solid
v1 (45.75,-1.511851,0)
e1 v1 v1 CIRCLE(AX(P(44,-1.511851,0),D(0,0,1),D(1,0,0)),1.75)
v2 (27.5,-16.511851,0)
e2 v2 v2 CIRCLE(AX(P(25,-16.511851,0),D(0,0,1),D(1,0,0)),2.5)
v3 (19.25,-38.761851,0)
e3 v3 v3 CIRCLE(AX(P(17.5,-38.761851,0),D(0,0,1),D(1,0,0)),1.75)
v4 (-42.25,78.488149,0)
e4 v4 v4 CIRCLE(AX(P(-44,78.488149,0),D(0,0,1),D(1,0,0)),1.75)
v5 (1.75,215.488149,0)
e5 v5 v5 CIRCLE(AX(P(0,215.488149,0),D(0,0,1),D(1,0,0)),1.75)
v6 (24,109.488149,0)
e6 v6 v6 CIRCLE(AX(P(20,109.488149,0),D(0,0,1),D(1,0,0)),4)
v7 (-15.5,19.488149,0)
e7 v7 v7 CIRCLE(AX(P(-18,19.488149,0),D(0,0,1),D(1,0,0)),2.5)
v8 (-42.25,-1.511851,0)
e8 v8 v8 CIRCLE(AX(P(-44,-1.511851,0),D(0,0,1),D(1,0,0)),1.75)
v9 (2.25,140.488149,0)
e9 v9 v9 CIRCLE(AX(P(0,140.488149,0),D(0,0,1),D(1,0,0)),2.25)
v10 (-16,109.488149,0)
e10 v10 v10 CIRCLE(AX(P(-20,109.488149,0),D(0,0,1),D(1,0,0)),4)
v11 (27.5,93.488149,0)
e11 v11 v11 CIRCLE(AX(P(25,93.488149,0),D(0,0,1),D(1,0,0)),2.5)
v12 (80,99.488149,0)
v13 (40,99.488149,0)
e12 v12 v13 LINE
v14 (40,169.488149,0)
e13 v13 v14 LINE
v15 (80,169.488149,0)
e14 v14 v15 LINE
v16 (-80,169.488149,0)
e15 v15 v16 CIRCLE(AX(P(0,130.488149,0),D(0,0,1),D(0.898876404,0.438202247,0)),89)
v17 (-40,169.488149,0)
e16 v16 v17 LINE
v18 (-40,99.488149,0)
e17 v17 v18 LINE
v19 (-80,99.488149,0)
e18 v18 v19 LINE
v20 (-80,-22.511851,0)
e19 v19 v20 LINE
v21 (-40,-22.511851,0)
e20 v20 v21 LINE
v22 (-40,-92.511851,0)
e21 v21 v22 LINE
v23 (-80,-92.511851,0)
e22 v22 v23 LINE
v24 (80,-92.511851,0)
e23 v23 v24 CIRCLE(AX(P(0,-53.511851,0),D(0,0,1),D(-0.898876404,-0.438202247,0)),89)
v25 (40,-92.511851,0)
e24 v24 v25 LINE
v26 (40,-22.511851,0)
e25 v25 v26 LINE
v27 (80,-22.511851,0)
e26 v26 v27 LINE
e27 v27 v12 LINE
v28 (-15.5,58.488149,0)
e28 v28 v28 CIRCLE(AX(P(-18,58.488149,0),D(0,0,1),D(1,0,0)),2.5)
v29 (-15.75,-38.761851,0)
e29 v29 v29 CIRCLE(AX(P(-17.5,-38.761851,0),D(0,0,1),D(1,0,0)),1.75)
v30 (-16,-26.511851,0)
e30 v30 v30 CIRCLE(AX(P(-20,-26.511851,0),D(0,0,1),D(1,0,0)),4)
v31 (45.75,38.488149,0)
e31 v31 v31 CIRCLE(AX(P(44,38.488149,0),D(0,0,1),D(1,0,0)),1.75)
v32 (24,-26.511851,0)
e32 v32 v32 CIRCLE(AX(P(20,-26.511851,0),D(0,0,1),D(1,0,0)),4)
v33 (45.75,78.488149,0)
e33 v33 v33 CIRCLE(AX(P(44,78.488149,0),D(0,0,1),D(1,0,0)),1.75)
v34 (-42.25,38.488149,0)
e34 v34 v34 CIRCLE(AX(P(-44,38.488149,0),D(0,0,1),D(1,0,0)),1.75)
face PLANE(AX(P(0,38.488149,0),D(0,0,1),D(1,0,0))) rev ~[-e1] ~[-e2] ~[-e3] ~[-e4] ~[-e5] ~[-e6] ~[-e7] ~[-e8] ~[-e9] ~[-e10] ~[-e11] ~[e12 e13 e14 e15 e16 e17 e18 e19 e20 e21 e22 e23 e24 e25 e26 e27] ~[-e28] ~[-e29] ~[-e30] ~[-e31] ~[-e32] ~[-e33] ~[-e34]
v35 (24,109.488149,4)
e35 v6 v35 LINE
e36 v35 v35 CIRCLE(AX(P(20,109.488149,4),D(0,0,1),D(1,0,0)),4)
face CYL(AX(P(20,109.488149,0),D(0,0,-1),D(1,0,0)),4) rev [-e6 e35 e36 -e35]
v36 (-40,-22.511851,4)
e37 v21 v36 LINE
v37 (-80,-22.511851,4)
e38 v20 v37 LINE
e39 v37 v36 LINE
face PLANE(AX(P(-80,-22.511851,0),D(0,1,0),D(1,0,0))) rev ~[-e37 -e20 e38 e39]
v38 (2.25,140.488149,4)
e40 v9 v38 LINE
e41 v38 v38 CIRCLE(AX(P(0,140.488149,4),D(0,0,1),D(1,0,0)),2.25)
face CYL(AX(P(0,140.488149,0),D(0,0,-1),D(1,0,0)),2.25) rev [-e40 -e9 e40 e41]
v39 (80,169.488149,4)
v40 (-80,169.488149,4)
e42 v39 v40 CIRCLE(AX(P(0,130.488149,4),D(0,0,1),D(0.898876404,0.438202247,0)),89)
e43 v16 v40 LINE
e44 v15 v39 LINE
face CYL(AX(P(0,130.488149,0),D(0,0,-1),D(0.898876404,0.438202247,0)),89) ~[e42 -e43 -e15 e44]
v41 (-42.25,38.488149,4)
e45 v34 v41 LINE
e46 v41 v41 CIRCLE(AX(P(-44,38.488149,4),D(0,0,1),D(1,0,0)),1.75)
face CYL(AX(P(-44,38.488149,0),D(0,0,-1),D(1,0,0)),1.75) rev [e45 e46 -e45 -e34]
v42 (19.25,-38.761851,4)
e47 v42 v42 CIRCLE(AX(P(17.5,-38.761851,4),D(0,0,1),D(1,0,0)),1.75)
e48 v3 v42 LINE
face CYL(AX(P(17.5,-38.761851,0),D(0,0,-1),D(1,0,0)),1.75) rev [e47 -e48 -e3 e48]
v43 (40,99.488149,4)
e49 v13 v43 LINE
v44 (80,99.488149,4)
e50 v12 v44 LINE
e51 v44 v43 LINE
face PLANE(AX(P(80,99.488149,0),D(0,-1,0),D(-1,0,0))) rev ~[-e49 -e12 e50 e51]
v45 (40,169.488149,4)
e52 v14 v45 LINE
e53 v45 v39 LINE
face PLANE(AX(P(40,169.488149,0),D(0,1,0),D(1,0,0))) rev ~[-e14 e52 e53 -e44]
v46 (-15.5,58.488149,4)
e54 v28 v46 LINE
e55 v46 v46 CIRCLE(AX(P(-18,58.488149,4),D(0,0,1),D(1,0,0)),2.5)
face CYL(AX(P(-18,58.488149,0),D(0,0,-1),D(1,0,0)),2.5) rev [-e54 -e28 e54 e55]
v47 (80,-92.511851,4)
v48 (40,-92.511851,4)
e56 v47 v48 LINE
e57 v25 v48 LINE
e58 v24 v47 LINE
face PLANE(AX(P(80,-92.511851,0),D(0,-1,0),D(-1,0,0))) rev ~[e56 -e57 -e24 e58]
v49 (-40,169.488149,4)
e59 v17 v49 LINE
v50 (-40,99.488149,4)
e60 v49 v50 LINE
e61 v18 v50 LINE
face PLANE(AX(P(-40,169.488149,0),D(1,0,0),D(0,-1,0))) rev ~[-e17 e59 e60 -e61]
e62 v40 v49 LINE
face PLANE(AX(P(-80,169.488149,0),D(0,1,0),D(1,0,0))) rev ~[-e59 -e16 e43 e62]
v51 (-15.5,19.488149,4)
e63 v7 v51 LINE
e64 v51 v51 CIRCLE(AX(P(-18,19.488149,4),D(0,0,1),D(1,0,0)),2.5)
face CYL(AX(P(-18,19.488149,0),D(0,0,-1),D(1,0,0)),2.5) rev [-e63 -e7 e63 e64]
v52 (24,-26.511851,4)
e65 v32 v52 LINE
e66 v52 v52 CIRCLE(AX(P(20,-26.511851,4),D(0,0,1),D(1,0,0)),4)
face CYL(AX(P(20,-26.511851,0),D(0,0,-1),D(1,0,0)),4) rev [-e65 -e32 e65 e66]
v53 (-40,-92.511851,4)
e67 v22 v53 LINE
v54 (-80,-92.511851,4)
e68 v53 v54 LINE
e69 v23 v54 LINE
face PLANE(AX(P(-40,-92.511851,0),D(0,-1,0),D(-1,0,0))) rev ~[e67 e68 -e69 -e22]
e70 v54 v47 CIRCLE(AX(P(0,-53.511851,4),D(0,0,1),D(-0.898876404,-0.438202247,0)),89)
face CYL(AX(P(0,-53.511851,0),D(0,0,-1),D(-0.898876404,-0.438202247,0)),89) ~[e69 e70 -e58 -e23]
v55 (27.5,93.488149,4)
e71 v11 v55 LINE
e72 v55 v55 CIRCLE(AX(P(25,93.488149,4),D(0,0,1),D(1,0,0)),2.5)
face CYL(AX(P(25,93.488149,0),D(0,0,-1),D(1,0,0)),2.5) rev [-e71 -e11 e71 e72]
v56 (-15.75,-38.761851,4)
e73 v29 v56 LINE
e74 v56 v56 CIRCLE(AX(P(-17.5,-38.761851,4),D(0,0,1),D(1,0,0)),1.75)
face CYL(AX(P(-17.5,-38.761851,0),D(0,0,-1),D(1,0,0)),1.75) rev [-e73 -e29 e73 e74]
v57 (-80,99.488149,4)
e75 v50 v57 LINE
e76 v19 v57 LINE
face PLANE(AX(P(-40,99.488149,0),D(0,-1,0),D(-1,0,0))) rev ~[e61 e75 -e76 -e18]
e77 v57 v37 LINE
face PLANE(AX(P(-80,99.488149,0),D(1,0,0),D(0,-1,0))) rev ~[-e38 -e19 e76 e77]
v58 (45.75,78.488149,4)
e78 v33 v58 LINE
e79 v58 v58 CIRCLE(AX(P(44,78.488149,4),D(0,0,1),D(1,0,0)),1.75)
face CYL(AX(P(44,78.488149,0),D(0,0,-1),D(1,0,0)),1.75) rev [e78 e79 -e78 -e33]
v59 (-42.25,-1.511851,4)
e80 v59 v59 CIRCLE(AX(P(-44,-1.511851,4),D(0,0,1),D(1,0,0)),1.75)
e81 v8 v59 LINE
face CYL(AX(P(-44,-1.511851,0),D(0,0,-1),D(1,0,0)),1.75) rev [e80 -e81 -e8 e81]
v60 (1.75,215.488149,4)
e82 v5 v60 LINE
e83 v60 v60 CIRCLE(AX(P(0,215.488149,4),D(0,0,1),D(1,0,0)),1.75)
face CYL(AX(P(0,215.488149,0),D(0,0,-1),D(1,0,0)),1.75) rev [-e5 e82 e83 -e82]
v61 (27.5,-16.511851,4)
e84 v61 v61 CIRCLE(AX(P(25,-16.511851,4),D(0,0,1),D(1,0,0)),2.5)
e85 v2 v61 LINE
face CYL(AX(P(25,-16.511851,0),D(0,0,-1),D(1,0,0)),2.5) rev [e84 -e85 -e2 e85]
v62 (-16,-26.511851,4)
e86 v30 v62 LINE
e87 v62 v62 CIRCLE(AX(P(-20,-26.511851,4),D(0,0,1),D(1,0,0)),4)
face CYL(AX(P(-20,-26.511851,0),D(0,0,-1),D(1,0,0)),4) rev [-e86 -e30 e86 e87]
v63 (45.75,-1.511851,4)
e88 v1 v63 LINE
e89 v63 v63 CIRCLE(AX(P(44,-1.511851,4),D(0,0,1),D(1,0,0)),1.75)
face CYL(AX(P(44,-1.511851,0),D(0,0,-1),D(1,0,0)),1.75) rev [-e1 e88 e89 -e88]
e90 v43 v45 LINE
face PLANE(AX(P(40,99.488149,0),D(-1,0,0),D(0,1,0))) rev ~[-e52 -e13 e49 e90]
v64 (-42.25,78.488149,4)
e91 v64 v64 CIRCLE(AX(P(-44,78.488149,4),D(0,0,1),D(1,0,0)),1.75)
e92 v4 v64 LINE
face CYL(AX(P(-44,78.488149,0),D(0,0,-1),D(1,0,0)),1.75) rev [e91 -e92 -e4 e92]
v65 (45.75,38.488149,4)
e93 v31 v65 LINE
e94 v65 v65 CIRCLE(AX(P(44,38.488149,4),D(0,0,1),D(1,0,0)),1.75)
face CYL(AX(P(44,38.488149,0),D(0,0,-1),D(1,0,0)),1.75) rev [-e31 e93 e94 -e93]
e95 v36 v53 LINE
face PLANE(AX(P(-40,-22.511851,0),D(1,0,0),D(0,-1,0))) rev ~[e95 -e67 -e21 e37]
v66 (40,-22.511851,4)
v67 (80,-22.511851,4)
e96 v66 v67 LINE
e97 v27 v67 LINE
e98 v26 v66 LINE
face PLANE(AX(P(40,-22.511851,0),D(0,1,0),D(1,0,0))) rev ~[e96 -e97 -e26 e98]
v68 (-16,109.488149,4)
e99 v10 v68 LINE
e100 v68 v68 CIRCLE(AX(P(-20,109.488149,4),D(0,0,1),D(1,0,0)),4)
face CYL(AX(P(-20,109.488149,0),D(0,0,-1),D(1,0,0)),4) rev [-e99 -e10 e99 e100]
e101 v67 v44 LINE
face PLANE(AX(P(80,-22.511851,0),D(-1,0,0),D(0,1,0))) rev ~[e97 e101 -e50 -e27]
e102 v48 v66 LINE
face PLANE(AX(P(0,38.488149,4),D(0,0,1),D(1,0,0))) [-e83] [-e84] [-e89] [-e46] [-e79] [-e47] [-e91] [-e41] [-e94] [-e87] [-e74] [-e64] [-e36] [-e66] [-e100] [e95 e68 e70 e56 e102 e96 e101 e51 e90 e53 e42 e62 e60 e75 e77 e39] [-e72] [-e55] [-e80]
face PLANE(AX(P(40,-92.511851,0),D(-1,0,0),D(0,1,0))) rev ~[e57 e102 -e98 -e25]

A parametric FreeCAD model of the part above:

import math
import FreeCAD as App
import Part
import Sketcher
from FreeCAD import Vector
Q = App.Units.Quantity

doc = App.newDocument("Part")
body = doc.addObject("PartDesign::Body", "Body")

sketch1 = doc.addObject("Sketcher::SketchObject", "Sketch")
body.addObject(sketch1)
sketch1.AttachmentSupport = (doc.XY_Plane, [""])
sketch1.MapMode = "FlatFace"
sketch1.addGeometry(Part.ArcOfCircle(Part.Circle(Vector(0, 130.5, 0), Vector(0, 0, 1), 89), math.radians(26), math.radians(154)), False)
sketch1.addGeometry(Part.LineSegment(Vector(-80, 169.5, 0), Vector(-40, 169.5, 0)), False)
sketch1.addGeometry(Part.LineSegment(Vector(-40, 169.5, 0), Vector(-40, 99.5, 0)), False)
sketch1.addGeometry(Part.LineSegment(Vector(-40, 99.5, 0), Vector(-80, 99.5, 0)), False)
sketch1.addGeometry(Part.LineSegment(Vector(-80, 99.5, 0), Vector(-80, -22.5, 0)), False)
sketch1.addGeometry(Part.LineSegment(Vector(-80, -22.5, 0), Vector(-40, -22.5, 0)), False)
sketch1.addGeometry(Part.LineSegment(Vector(-40, -22.5, 0), Vector(-40, -92.5, 0)), False)
sketch1.addGeometry(Part.LineSegment(Vector(-40, -92.5, 0), Vector(-80, -92.5, 0)), False)
sketch1.addGeometry(Part.ArcOfCircle(Part.Circle(Vector(0, -53.5, 0), Vector(0, 0, 1), 89), math.radians(-154), math.radians(-26)), False)
sketch1.addGeometry(Part.LineSegment(Vector(80, -92.5, 0), Vector(40, -92.5, 0)), False)
sketch1.addGeometry(Part.LineSegment(Vector(40, -92.5, 0), Vector(40, -22.5, 0)), False)
sketch1.addGeometry(Part.LineSegment(Vector(40, -22.5, 0), Vector(80, -22.5, 0)), False)
sketch1.addGeometry(Part.LineSegment(Vector(80, -22.5, 0), Vector(80, 99.5, 0)), False)
sketch1.addGeometry(Part.LineSegment(Vector(80, 99.5, 0), Vector(40, 99.5, 0)), False)
sketch1.addGeometry(Part.LineSegment(Vector(40, 99.5, 0), Vector(40, 169.5, 0)), False)
sketch1.addGeometry(Part.LineSegment(Vector(40, 169.5, 0), Vector(80, 169.5, 0)), False)
sketch1.addGeometry(Part.Circle(Vector(-44, -1.5, 0), Vector(0, 0, 1), 1.8), False)
sketch1.addGeometry(Part.Circle(Vector(-17.5, -38.8, 0), Vector(0, 0, 1), 1.8), False)
sketch1.addGeometry(Part.Circle(Vector(-20, -26.5, 0), Vector(0, 0, 1), 4), False)
sketch1.addGeometry(Part.Circle(Vector(-18, 19.5, 0), Vector(0, 0, 1), 2.5), False)
sketch1.addGeometry(Part.Circle(Vector(-44, 38.5, 0), Vector(0, 0, 1), 1.8), False)
sketch1.addGeometry(Part.Circle(Vector(-44, 78.5, 0), Vector(0, 0, 1), 1.8), False)
sketch1.addGeometry(Part.Circle(Vector(-18, 58.5, 0), Vector(0, 0, 1), 2.5), False)
sketch1.addGeometry(Part.Circle(Vector(17.5, -38.8, 0), Vector(0, 0, 1), 1.8), False)
sketch1.addGeometry(Part.Circle(Vector(20, -26.5, 0), Vector(0, 0, 1), 4), False)
sketch1.addGeometry(Part.Circle(Vector(25, -16.5, 0), Vector(0, 0, 1), 2.5), False)
sketch1.addGeometry(Part.Circle(Vector(44, -1.5, 0), Vector(0, 0, 1), 1.8), False)
sketch1.addGeometry(Part.Circle(Vector(44, 38.5, 0), Vector(0, 0, 1), 1.8), False)
sketch1.addGeometry(Part.Circle(Vector(44, 78.5, 0), Vector(0, 0, 1), 1.8), False)
sketch1.addGeometry(Part.Circle(Vector(-20, 109.5, 0), Vector(0, 0, 1), 4), False)
sketch1.addGeometry(Part.Circle(Vector(20, 109.5, 0), Vector(0, 0, 1), 4), False)
sketch1.addGeometry(Part.Circle(Vector(0, 140.5, 0), Vector(0, 0, 1), 2.2), False)
sketch1.addGeometry(Part.Circle(Vector(25, 93.5, 0), Vector(0, 0, 1), 2.5), False)
sketch1.addGeometry(Part.Circle(Vector(0, 215.5, 0), Vector(0, 0, 1), 1.8), False)
sketch1.addConstraint(Sketcher.Constraint("Coincident", 0, 2, 1, 1))
sketch1.addConstraint(Sketcher.Constraint("Coincident", 1, 2, 2, 1))
sketch1.addConstraint(Sketcher.Constraint("Coincident", 2, 2, 3, 1))
sketch1.addConstraint(Sketcher.Constraint("Coincident", 3, 2, 4, 1))
sketch1.addConstraint(Sketcher.Constraint("Coincident", 4, 2, 5, 1))
sketch1.addConstraint(Sketcher.Constraint("Coincident", 5, 2, 6, 1))
sketch1.addConstraint(Sketcher.Constraint("Coincident", 6, 2, 7, 1))
sketch1.addConstraint(Sketcher.Constraint("Coincident", 7, 2, 8, 1))
sketch1.addConstraint(Sketcher.Constraint("Coincident", 8, 2, 9, 1))
sketch1.addConstraint(Sketcher.Constraint("Coincident", 9, 2, 10, 1))
sketch1.addConstraint(Sketcher.Constraint("Coincident", 10, 2, 11, 1))
sketch1.addConstraint(Sketcher.Constraint("Coincident", 11, 2, 12, 1))
sketch1.addConstraint(Sketcher.Constraint("Coincident", 12, 2, 13, 1))
sketch1.addConstraint(Sketcher.Constraint("Coincident", 13, 2, 14, 1))
sketch1.addConstraint(Sketcher.Constraint("Coincident", 14, 2, 15, 1))
sketch1.addConstraint(Sketcher.Constraint("Coincident", 15, 2, 0, 1))
sketch1.addConstraint(Sketcher.Constraint("Horizontal", 1))
sketch1.addConstraint(Sketcher.Constraint("Vertical", 2))
sketch1.addConstraint(Sketcher.Constraint("Horizontal", 3))
sketch1.addConstraint(Sketcher.Constraint("Vertical", 4))
sketch1.addConstraint(Sketcher.Constraint("Horizontal", 5))
sketch1.addConstraint(Sketcher.Constraint("Vertical", 6))
sketch1.addConstraint(Sketcher.Constraint("Horizontal", 7))
sketch1.addConstraint(Sketcher.Constraint("Horizontal", 9))
sketch1.addConstraint(Sketcher.Constraint("Vertical", 10))
sketch1.addConstraint(Sketcher.Constraint("Horizontal", 11))
sketch1.addConstraint(Sketcher.Constraint("Vertical", 12))
sketch1.addConstraint(Sketcher.Constraint("Horizontal", 13))
sketch1.addConstraint(Sketcher.Constraint("Vertical", 14))
sketch1.addConstraint(Sketcher.Constraint("Horizontal", 15))
sketch1.addConstraint(Sketcher.Constraint("Equal", 0, 8))
sketch1.addConstraint(Sketcher.Constraint("Equal", 16, 17))
sketch1.addConstraint(Sketcher.Constraint("Equal", 17, 20))
sketch1.addConstraint(Sketcher.Constraint("Equal", 20, 21))
sketch1.addConstraint(Sketcher.Constraint("Equal", 19, 22))
sketch1.addConstraint(Sketcher.Constraint("Equal", 21, 23))
sketch1.addConstraint(Sketcher.Constraint("Equal", 18, 24))
sketch1.addConstraint(Sketcher.Constraint("Equal", 22, 25))
sketch1.addConstraint(Sketcher.Constraint("Equal", 23, 26))
sketch1.addConstraint(Sketcher.Constraint("Equal", 26, 27))
sketch1.addConstraint(Sketcher.Constraint("Equal", 27, 28))
sketch1.addConstraint(Sketcher.Constraint("Equal", 24, 29))
sketch1.addConstraint(Sketcher.Constraint("Equal", 29, 30))
sketch1.addConstraint(Sketcher.Constraint("Equal", 25, 32))
sketch1.addConstraint(Sketcher.Constraint("Equal", 28, 33))
sketch1.addConstraint(Sketcher.Constraint("Symmetric", 17, 3, 23, 3, -2))
sketch1.addConstraint(Sketcher.Constraint("Symmetric", 18, 3, 24, 3, -2))
sketch1.addConstraint(Sketcher.Constraint("Symmetric", 16, 3, 26, 3, -2))
sketch1.addConstraint(Sketcher.Constraint("Symmetric", 20, 3, 27, 3, -2))
sketch1.addConstraint(Sketcher.Constraint("Symmetric", 21, 3, 28, 3, -2))
sketch1.addConstraint(Sketcher.Constraint("Symmetric", 29, 3, 30, 3, -2))
sketch1.addConstraint(Sketcher.Constraint("Symmetric", 7, 2, 8, 2, -2))
sketch1.addConstraint(Sketcher.Constraint("Symmetric", 5, 2, 10, 2, -2))
sketch1.addConstraint(Sketcher.Constraint("Symmetric", 3, 2, 12, 2, -2))
sketch1.addConstraint(Sketcher.Constraint("Symmetric", 1, 2, 14, 2, -2))
sketch1.addConstraint(Sketcher.Constraint("PointOnObject", 0, 3, -2))
sketch1.addConstraint(Sketcher.Constraint("PointOnObject", 31, 3, -2))
sketch1.addConstraint(Sketcher.Constraint("PointOnObject", 33, 3, -2))
sketch1.addConstraint(Sketcher.Constraint("Vertical", 16, 3, 20, 3))
sketch1.addConstraint(Sketcher.Constraint("Vertical", 20, 3, 21, 3))
sketch1.addConstraint(Sketcher.Constraint("Vertical", 19, 3, 22, 3))
sketch1.addConstraint(Sketcher.Constraint("Vertical", 18, 3, 29, 3))
sketch1.addConstraint(Sketcher.Constraint("Vertical", 25, 3, 32, 3))
sketch1.addConstraint(Sketcher.Constraint("Vertical", 0, 2, 3, 2))
sketch1.addConstraint(Sketcher.Constraint("Vertical", 2, 2, 5, 2))
sketch1.addConstraint(Sketcher.Constraint("Vertical", 4, 2, 7, 2))
sketch1.addConstraint(Sketcher.Constraint("Equal", 2, 6))
sketch1.addConstraint(Sketcher.Constraint("Diameter", 18, Q("8 mm")))
sketch1.addConstraint(Sketcher.Constraint("Diameter", 19, Q("5 mm")))
sketch1.addConstraint(Sketcher.Constraint("Radius", 0, Q("89 mm")))
sketch1.addConstraint(Sketcher.Constraint("Diameter", 16, Q("3.5 mm")))
sketch1.addConstraint(Sketcher.Constraint("Diameter", 31, Q("4.5 mm")))
sketch1.addConstraint(Sketcher.Constraint("DistanceX", 1, 1, 1, 2, Q("40 mm")))
sketch1.addConstraint(Sketcher.Constraint("DistanceY", 2, 2, 2, 1, Q("70 mm")))
sketch1.addConstraint(Sketcher.Constraint("DistanceY", 4, 2, 4, 1, Q("122 mm")))
sketch1.addConstraint(Sketcher.Constraint("DistanceX", 16, 3, -1, 1, Q("44 mm")))
sketch1.addConstraint(Sketcher.Constraint("DistanceX", 18, 3, -1, 1, Q("20 mm")))
sketch1.addConstraint(Sketcher.Constraint("DistanceX", 19, 3, -1, 1, Q("18 mm")))
sketch1.addConstraint(Sketcher.Constraint("DistanceX", -1, 1, 25, 3, Q("25 mm")))
sketch1.addConstraint(Sketcher.Constraint("DistanceX", 0, 2, -1, 1, Q("80 mm")))
sketch1.addConstraint(Sketcher.Constraint("DistanceY", 8, 3, 16, 3, Q("52 mm")))
sketch1.addConstraint(Sketcher.Constraint("DistanceY", 8, 3, 18, 3, Q("27 mm")))
sketch1.addConstraint(Sketcher.Constraint("DistanceY", 16, 3, 19, 3, Q("21 mm")))
sketch1.addConstraint(Sketcher.Constraint("DistanceY", 19, 3, 20, 3, Q("19 mm")))
sketch1.addConstraint(Sketcher.Constraint("DistanceY", 20, 3, 21, 3, Q("40 mm")))
sketch1.addConstraint(Sketcher.Constraint("DistanceY", 20, 3, 22, 3, Q("20 mm")))
sketch1.addConstraint(Sketcher.Constraint("DistanceX", 17, 3, 23, 3, Q("35 mm")))
sketch1.addConstraint(Sketcher.Constraint("DistanceY", 24, 3, 25, 3, Q("10 mm")))
sketch1.addConstraint(Sketcher.Constraint("DistanceY", 29, 3, 0, 3, Q("21 mm")))
sketch1.addConstraint(Sketcher.Constraint("DistanceY", 0, 3, 31, 3, Q("10 mm")))
sketch1.addConstraint(Sketcher.Constraint("DistanceY", 32, 3, 30, 3, Q("16 mm")))
sketch1.addConstraint(Sketcher.Constraint("DistanceY", 31, 3, 33, 3, Q("75 mm")))
sketch1.addConstraint(Sketcher.Constraint("DistanceY", 8, 3, 17, 3, Q("14.75 mm")))
sketch1.addConstraint(Sketcher.Constraint("DistanceY", -1, 1, 0, 3, Q("130.488149 mm")))
pad1 = doc.addObject("PartDesign::Pad", "Pad")
body.addObject(pad1)
pad1.Profile = sketch1
pad1.Length = 4

doc.recompute()
